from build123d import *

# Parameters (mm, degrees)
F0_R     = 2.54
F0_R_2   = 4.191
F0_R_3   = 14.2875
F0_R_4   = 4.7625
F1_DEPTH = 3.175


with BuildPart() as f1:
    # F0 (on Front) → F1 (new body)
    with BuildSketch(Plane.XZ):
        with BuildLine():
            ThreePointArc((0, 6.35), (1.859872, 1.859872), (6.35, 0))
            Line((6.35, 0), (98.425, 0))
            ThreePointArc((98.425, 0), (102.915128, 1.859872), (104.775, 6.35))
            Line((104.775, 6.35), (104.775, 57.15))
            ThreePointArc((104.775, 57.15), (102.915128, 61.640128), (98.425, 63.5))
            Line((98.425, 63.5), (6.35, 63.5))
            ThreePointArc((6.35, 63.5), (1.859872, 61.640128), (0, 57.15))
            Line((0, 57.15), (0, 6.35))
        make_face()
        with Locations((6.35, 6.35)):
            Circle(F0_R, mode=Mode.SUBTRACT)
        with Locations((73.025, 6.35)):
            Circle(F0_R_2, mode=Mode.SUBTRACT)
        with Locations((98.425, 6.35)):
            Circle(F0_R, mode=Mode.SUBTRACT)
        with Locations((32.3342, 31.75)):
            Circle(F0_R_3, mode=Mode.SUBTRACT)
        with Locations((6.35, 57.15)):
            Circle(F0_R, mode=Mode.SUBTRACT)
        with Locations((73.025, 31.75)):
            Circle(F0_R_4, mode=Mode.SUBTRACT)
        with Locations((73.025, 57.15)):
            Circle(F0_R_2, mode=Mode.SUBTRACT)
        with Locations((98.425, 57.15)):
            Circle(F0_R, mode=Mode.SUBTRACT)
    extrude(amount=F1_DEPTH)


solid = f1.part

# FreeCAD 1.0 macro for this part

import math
import FreeCAD as App
import Part
import Sketcher
Q = App.Units.Quantity

doc = App.newDocument("Part")
body = doc.addObject("PartDesign::Body", "Body")

sketch1 = doc.addObject("Sketcher::SketchObject", "Sketch")
body.addObject(sketch1)
sketch1.AttachmentSupport = (doc.XZ_Plane, [""])
sketch1.MapMode = "FlatFace"
sketch1.addGeometry([
    Part.ArcOfCircle(Part.Circle(App.Vector(6.35, 6.35, 0), App.Vector(0, 0, 1), 6.35), math.radians(-179.999998), math.radians(-90.000002)),
    Part.LineSegment(App.Vector(6.35, 0, 0), App.Vector(98.425, 0, 0)),
    Part.ArcOfCircle(Part.Circle(App.Vector(98.425, 6.35, 0), App.Vector(0, 0, 1), 6.35), math.radians(-89.999998), math.radians(-0.000002)),
    Part.LineSegment(App.Vector(104.775, 6.35, 0), App.Vector(104.775, 57.15, 0)),
    Part.ArcOfCircle(Part.Circle(App.Vector(98.425, 57.15, 0), App.Vector(0, 0, 1), 6.35), math.radians(0.000002), math.radians(89.999998)),
    Part.LineSegment(App.Vector(98.425, 63.5, 0), App.Vector(6.35, 63.5, 0)),
    Part.ArcOfCircle(Part.Circle(App.Vector(6.35, 57.15, 0), App.Vector(0, 0, 1), 6.35), math.radians(90.000002), math.radians(179.999998)),
    Part.LineSegment(App.Vector(0, 57.15, 0), App.Vector(0, 6.35, 0)),
    Part.Circle(App.Vector(6.35, 6.35, 0), App.Vector(0, 0, 1), 2.54),
    Part.Circle(App.Vector(73.025, 6.35, 0), App.Vector(0, 0, 1), 4.191),
    Part.Circle(App.Vector(98.425, 6.35, 0), App.Vector(0, 0, 1), 2.54),
    Part.Circle(App.Vector(32.3342, 31.75, 0), App.Vector(0, 0, 1), 14.2875),
    Part.Circle(App.Vector(6.35, 57.15, 0), App.Vector(0, 0, 1), 2.54),
    Part.Circle(App.Vector(73.025, 31.75, 0), App.Vector(0, 0, 1), 4.7625),
    Part.Circle(App.Vector(73.025, 57.15, 0), App.Vector(0, 0, 1), 4.191),
    Part.Circle(App.Vector(98.425, 57.15, 0), App.Vector(0, 0, 1), 2.54),
], False)
sketch1.addConstraint([
    Sketcher.Constraint("Tangent", 0, 2, 1, 1),
    Sketcher.Constraint("Tangent", 1, 2, 2, 1),
    Sketcher.Constraint("Tangent", 2, 2, 3, 1),
    Sketcher.Constraint("Tangent", 3, 2, 4, 1),
    Sketcher.Constraint("Tangent", 4, 2, 5, 1),
    Sketcher.Constraint("Tangent", 5, 2, 6, 1),
    Sketcher.Constraint("Tangent", 6, 2, 7, 1),
    Sketcher.Constraint("Tangent", 7, 2, 0, 1),
    Sketcher.Constraint("Horizontal", 1),
    Sketcher.Constraint("Vertical", 3),
    Sketcher.Constraint("Horizontal", 5),
    Sketcher.Constraint("Vertical", 7),
    Sketcher.Constraint("Coincident", 8, 3, 0, 3),
    Sketcher.Constraint("Coincident", 10, 3, 2, 3),
    Sketcher.Constraint("Coincident", 12, 3, 6, 3),
    Sketcher.Constraint("Coincident", 15, 3, 4, 3),
    Sketcher.Constraint("Equal", 0, 2),
    Sketcher.Constraint("Equal", 2, 4),
    Sketcher.Constraint("Equal", 4, 6),
    Sketcher.Constraint("Equal", 8, 10),
    Sketcher.Constraint("Equal", 10, 12),
    Sketcher.Constraint("Equal", 9, 14),
    Sketcher.Constraint("Equal", 12, 15),
    Sketcher.Constraint("PointOnObject", 0, 2, -1),
    Sketcher.Constraint("PointOnObject", 6, 2, -2),
    Sketcher.Constraint("Horizontal", 8, 3, 9, 3),
    Sketcher.Constraint("Horizontal", 11, 3, 13, 3),
    Sketcher.Constraint("Horizontal", 12, 3, 14, 3),
    Sketcher.Constraint("Vertical", 9, 3, 13, 3),
    Sketcher.Constraint("Vertical", 13, 3, 14, 3),
    Sketcher.Constraint("Diameter", 8, Q("0.2 in")),
    Sketcher.Constraint("Diameter", 9, Q("0.33 in")),
    Sketcher.Constraint("DistanceY", 3, 1, 3, 2, Q("2 in")),
    Sketcher.Constraint("Radius", 0, Q("0.25 in")),
    Sketcher.Constraint("Diameter", 11, Q("1.125 in")),
    Sketcher.Constraint("Diameter", 13, Q("0.375 in")),
    Sketcher.Constraint("DistanceX", 9, 3, 2, 3, Q("1 in")),
    Sketcher.Constraint("DistanceY", 0, 3, 11, 3, Q("1 in")),
    Sketcher.Constraint("DistanceX", 1, 1, 1, 2, Q("3.625 in")),
    Sketcher.Constraint("DistanceX", -1, 1, 11, 3, Q("1.273 in")),
])
pad1 = doc.addObject("PartDesign::Pad", "Pad")
body.addObject(pad1)
pad1.Profile = sketch1
pad1.Length = Q("0.125 in")

doc.recompute()
